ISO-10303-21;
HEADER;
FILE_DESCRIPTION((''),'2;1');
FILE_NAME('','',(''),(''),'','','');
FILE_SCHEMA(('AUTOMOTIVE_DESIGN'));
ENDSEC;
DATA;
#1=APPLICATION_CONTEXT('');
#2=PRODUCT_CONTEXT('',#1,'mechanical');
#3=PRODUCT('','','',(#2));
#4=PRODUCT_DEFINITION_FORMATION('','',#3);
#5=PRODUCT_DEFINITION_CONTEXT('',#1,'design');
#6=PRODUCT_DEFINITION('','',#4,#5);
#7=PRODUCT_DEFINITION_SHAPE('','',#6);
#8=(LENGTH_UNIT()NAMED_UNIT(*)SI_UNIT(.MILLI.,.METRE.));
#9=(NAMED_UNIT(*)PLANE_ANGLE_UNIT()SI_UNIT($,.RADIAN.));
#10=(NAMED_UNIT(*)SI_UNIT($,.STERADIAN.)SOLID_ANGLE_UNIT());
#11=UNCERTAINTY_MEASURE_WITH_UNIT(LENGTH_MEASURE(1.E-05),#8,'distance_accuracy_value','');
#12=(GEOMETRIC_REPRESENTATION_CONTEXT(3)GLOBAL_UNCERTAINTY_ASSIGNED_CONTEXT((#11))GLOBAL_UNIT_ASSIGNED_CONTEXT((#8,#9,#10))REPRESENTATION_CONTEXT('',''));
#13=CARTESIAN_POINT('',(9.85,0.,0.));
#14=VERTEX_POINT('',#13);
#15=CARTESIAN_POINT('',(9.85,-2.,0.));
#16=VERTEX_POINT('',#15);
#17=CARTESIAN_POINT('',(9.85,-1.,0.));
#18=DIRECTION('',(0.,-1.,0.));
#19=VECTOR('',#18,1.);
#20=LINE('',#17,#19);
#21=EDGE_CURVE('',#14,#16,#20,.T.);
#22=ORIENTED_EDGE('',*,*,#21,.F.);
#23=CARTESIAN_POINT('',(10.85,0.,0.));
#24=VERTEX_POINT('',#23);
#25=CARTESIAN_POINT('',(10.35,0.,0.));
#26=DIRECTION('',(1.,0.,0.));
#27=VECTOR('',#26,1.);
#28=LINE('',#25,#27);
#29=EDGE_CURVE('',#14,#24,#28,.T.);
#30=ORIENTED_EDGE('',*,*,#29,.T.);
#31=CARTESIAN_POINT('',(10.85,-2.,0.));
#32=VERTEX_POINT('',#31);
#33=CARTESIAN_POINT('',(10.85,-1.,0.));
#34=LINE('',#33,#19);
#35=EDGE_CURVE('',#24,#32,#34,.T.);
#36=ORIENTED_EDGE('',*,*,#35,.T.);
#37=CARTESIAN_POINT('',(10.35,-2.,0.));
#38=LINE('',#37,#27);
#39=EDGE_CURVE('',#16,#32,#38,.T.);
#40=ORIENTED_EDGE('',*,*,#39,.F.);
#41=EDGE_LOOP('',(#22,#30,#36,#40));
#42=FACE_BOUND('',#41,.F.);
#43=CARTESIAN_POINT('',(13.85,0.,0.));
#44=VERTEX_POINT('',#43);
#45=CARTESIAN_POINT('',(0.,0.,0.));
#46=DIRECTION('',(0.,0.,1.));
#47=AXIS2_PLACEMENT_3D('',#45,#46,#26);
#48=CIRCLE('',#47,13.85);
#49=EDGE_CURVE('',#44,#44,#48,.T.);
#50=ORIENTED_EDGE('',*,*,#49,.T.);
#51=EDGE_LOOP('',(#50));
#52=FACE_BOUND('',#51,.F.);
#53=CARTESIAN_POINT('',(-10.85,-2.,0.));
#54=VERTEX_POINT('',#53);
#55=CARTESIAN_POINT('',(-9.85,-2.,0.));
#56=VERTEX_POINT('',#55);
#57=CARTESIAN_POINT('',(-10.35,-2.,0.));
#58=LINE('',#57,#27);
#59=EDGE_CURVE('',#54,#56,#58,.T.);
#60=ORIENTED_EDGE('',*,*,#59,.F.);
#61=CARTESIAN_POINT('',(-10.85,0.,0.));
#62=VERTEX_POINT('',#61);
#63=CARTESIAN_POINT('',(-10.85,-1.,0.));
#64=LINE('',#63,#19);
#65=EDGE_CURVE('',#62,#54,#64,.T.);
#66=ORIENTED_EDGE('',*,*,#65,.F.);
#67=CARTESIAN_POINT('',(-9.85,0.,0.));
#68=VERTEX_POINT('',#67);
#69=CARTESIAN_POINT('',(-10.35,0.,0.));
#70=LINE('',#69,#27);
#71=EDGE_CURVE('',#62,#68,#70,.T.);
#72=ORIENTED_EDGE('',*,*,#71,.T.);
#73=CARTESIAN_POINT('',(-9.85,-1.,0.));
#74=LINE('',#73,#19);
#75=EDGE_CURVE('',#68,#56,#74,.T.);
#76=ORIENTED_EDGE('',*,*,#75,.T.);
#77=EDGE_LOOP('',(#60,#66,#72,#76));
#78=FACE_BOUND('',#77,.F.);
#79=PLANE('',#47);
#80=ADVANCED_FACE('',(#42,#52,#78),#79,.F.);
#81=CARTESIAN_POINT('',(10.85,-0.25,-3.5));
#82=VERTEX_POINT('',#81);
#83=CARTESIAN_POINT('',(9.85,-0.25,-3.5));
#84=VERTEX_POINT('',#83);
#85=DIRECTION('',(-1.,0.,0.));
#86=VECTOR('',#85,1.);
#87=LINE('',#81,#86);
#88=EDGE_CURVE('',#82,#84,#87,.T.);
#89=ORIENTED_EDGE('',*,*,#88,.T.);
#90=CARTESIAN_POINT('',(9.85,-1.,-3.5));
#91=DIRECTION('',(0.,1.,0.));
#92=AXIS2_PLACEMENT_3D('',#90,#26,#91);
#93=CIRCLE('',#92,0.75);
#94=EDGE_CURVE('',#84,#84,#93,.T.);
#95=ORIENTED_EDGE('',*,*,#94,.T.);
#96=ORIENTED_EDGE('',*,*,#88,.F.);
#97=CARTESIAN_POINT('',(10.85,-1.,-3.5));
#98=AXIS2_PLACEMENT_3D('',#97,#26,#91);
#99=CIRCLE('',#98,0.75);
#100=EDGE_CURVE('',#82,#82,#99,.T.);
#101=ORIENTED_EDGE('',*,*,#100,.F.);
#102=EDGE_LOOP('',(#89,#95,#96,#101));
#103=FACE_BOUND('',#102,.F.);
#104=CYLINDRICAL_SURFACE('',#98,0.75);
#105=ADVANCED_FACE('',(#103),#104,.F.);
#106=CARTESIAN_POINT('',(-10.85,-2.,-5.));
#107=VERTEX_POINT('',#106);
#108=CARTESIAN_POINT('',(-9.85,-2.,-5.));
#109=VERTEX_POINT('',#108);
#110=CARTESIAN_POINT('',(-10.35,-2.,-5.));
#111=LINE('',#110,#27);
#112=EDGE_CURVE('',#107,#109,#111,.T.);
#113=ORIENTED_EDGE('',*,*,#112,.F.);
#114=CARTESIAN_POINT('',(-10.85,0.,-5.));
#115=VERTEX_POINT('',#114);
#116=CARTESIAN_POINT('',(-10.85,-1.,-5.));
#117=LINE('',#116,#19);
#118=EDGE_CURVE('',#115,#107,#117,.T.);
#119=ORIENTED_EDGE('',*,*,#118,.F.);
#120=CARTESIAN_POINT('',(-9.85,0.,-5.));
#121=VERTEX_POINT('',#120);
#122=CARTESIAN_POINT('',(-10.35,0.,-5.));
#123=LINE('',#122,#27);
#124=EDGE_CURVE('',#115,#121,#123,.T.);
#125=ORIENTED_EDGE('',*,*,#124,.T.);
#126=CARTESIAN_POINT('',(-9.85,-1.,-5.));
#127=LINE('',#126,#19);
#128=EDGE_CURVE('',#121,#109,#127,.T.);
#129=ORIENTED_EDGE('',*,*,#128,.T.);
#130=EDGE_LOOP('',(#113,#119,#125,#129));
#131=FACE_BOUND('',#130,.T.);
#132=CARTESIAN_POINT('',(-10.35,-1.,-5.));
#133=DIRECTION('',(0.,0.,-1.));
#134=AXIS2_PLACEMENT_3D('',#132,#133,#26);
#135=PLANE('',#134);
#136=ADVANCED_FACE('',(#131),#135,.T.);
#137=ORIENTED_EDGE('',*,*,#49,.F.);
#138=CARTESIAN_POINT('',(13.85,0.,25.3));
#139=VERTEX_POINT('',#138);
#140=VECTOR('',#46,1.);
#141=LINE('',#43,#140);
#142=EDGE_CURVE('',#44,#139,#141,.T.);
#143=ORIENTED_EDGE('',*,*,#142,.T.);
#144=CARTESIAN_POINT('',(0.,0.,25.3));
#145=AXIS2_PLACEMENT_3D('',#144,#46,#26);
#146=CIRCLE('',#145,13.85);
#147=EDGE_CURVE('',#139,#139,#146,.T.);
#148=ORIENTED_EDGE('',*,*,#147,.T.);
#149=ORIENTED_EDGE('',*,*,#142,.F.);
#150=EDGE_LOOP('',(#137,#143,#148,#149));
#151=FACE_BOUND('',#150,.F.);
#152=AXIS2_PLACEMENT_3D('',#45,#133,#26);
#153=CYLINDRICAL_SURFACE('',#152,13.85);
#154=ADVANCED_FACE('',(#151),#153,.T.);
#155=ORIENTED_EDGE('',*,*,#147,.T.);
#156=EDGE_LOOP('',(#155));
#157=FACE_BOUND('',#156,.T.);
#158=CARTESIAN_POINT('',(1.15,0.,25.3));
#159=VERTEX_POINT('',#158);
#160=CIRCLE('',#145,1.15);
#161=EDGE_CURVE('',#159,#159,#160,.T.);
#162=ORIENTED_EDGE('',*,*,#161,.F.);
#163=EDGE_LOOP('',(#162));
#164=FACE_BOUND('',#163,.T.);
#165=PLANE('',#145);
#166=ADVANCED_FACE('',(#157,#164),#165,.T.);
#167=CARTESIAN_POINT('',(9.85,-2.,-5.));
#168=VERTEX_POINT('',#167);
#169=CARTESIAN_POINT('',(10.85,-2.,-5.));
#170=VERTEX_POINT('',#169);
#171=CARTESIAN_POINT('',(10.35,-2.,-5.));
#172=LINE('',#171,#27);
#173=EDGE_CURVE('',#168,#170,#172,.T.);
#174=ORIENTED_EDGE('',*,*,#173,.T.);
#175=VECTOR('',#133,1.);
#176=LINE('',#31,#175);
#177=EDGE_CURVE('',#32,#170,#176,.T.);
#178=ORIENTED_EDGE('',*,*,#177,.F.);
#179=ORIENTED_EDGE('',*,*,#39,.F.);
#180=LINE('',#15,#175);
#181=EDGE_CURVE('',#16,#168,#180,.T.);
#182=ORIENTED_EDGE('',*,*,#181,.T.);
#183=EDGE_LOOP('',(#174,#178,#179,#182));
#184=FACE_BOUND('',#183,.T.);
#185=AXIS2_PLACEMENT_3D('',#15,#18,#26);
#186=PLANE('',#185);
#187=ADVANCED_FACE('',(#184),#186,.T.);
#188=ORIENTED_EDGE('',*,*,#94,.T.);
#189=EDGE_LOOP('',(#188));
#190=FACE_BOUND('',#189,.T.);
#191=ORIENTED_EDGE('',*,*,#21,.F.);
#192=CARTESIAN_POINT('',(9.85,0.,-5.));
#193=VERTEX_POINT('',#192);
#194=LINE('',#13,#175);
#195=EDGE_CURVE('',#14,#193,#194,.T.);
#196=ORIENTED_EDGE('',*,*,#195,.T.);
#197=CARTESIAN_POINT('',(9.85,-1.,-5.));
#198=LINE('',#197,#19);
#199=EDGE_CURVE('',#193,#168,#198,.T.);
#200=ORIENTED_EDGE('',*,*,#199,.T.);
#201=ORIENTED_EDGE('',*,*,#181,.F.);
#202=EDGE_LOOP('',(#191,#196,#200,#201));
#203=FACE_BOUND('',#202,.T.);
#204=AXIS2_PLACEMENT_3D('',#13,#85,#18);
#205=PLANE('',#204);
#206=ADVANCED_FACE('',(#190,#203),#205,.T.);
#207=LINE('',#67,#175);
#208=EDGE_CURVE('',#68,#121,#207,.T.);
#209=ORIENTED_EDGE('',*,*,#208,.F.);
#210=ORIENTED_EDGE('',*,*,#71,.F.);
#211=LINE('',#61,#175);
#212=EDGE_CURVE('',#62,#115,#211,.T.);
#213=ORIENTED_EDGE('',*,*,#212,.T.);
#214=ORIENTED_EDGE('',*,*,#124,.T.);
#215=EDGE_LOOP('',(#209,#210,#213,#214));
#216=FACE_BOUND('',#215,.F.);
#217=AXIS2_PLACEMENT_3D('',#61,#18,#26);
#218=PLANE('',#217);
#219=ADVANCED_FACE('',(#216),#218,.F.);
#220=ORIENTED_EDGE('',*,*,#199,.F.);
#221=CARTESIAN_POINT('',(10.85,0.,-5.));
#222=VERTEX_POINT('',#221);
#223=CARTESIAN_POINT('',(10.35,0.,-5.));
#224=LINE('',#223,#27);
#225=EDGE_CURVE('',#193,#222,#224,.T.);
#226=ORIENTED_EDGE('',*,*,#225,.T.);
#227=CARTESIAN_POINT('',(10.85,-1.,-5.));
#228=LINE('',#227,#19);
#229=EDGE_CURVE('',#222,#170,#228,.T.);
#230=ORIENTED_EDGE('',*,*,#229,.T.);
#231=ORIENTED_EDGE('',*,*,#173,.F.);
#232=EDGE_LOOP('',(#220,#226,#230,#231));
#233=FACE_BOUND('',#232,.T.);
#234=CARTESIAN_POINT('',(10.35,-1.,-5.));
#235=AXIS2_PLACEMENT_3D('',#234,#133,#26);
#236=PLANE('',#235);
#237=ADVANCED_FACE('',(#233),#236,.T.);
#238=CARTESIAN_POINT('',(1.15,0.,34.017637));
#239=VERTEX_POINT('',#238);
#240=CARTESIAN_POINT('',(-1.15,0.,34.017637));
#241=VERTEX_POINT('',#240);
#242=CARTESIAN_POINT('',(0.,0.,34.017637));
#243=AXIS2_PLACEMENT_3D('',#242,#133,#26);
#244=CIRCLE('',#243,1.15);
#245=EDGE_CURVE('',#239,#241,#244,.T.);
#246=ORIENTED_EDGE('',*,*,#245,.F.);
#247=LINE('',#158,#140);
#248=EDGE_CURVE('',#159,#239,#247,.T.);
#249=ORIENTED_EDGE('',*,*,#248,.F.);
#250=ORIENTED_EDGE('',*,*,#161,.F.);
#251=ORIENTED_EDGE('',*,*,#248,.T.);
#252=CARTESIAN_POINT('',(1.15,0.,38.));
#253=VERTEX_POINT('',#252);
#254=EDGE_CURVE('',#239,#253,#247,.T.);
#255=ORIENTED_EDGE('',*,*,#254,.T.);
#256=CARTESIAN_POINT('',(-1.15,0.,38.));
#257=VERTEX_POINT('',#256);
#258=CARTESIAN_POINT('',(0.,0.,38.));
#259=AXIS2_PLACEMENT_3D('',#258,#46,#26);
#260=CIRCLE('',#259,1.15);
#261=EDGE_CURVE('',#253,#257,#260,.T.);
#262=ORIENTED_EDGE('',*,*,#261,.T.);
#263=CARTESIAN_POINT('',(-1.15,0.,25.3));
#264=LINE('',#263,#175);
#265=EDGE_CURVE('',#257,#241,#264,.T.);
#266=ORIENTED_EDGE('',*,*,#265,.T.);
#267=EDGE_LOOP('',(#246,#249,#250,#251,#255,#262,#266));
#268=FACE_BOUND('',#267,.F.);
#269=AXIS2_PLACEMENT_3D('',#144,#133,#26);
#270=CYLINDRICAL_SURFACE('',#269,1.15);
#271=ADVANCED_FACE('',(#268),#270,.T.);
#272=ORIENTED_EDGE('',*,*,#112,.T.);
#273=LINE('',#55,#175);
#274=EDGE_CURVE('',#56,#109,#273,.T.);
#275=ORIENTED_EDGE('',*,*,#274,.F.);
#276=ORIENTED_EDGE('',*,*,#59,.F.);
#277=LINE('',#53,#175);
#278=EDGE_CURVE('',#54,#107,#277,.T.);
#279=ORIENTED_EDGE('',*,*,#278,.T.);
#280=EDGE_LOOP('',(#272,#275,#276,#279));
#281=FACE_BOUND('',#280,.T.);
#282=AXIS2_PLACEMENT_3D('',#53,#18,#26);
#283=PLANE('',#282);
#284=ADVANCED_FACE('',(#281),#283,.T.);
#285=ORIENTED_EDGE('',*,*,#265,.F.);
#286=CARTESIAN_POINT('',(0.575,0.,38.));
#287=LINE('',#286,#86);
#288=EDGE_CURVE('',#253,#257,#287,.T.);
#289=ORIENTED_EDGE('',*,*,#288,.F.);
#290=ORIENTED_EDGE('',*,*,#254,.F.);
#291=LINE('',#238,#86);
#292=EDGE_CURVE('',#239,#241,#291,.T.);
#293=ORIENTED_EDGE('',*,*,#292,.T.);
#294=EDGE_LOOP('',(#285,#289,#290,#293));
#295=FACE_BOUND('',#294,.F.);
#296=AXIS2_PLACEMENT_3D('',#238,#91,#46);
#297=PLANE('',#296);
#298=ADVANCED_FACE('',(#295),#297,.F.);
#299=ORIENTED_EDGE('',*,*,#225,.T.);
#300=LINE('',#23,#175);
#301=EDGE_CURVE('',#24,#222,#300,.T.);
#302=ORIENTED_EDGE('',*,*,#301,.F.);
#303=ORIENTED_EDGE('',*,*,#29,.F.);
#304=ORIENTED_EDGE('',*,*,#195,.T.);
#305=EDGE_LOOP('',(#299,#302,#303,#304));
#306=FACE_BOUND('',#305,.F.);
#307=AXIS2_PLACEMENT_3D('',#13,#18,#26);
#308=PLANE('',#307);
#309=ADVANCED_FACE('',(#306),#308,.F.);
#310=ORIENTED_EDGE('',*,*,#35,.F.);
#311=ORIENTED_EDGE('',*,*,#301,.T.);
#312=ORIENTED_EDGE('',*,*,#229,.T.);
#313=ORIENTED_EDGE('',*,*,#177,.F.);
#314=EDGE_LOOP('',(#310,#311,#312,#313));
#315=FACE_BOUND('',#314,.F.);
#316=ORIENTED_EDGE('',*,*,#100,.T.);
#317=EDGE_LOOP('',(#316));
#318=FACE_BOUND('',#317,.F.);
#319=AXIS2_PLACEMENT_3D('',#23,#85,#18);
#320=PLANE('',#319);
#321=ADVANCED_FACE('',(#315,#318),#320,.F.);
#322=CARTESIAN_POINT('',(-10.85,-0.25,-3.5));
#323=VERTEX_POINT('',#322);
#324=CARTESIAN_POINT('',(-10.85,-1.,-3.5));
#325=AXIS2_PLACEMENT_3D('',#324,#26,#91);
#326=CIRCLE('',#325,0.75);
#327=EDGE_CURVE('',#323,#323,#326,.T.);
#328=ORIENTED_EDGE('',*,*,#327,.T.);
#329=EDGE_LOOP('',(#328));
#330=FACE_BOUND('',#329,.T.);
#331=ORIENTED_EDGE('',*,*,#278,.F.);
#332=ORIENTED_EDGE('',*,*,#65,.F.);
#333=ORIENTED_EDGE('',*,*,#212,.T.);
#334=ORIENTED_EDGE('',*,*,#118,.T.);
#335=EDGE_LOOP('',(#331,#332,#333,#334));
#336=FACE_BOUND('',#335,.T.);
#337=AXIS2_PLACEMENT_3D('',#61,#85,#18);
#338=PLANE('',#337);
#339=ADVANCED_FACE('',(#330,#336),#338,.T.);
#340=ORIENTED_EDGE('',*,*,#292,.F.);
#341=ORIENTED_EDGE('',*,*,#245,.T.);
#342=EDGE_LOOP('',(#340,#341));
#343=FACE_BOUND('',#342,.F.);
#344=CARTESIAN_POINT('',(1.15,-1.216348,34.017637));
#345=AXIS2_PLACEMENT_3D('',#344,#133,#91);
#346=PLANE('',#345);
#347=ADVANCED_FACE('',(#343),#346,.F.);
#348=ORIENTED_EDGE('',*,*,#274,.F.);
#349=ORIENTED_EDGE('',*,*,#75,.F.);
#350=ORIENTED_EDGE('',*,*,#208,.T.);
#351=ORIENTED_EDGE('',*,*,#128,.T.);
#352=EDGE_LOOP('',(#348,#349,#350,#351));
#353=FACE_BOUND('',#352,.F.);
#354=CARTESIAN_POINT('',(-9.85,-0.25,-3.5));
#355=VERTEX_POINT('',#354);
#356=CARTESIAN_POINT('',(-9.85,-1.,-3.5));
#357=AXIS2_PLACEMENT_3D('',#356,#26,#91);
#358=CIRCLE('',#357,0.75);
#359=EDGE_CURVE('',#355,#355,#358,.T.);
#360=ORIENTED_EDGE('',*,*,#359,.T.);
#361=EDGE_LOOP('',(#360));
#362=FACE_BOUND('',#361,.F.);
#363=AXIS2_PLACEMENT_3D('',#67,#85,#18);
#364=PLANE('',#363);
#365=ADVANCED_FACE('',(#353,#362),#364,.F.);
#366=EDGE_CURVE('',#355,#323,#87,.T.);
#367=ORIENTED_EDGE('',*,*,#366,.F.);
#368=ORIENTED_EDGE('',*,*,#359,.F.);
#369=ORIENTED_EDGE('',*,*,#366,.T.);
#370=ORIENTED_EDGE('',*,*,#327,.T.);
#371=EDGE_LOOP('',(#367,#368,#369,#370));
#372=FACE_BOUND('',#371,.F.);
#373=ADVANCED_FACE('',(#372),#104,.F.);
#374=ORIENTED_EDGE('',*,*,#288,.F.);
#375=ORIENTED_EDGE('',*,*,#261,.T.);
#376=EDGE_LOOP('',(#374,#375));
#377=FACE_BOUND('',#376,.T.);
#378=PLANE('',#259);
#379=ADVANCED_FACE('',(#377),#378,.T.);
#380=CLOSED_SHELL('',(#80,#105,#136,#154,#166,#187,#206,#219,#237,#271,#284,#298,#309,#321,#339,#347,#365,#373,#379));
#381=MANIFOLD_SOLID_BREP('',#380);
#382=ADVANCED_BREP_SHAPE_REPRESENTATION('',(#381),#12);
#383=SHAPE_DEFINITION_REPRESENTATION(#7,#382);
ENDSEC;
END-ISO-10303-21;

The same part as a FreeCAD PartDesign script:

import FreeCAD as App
import Part
import Sketcher
from FreeCAD import Vector


def add_polygon(sketch, points):
    """Adds a closed chain of lines whose ends are joined by coincident constraints."""
    first, n = sketch.GeometryCount, len(points)
    for a, b in zip(points, points[1:] + points[:1]):
        sketch.addGeometry(Part.LineSegment(App.Vector(*a, 0), App.Vector(*b, 0)), False)
    for i in range(n):
        sketch.addConstraint(Sketcher.Constraint("Coincident", first + i, 2, first + (i + 1) % n, 1))

doc = App.newDocument("Part")
params = doc.addObject("Spreadsheet::Sheet", "Params")
for row, (alias, value) in enumerate([
    ("sketch1_diameter", "27.7 mm"),
    ("pad1_length", "25.3 mm"),
    ("sketch2_diameter", "2.3 mm"),
    ("pad2_length", "12.7 mm"),
    ("pocket1_length", "25 mm"),
    ("sketch4_width", "1 mm"),
    ("sketch4_height", "2 mm"),
    ("pad3_length", "5 mm"),
    ("sketch5_diameter", "1.5 mm"),
], start=1):
    params.set(f"A{row}", alias)
    params.set(f"B{row}", "=" + value)
    params.setAlias(f"B{row}", alias)

body = doc.addObject("PartDesign::Body", "Body")

# Sketch on XY plane
sketch1 = body.newObject("Sketcher::SketchObject", "Sketch")
sketch1.AttachmentSupport = (doc.getObject("XY_Plane"), [""])
sketch1.MapMode = "FlatFace"
sketch1.addGeometry(Part.Circle(Vector(0, 0, 0), Vector(0, 0, 1), 13.85), False)
sketch1.addConstraint([
    Sketcher.Constraint("Coincident", 0, 3, -1, 1),
    Sketcher.Constraint("Diameter", 0, 27.7),
])
sketch1.setExpression("Constraints[1]", "Params.sketch1_diameter")
pad1 = body.newObject("PartDesign::Pad", "Pad")
pad1.Profile = sketch1
pad1.setExpression("Length", "Params.pad1_length")

# Sketch on XY plane
sketch2 = body.newObject("Sketcher::SketchObject", "Sketch001")
sketch2.AttachmentSupport = (doc.getObject("XY_Plane"), [""])
sketch2.MapMode = "FlatFace"
sketch2.AttachmentOffset = App.Placement(Vector(0, 0, 25.3), App.Rotation())
sketch2.addGeometry(Part.Circle(Vector(0, 0, 0), Vector(0, 0, 1), 1.15), False)
sketch2.addConstraint([
    Sketcher.Constraint("Coincident", 0, 3, -1, 1),
    Sketcher.Constraint("Diameter", 0, 2.3),
])
sketch2.setExpression("Constraints[1]", "Params.sketch2_diameter")
pad2 = body.newObject("PartDesign::Pad", "Pad001")
pad2.Profile = sketch2
pad2.setExpression("Length", "Params.pad2_length")

# Sketch on YZ plane
sketch3 = body.newObject("Sketcher::SketchObject", "Sketch002")
sketch3.AttachmentSupport = (doc.getObject("YZ_Plane"), [""])
sketch3.MapMode = "FlatFace"
sketch3.AttachmentOffset = App.Placement(Vector(0, 0, 1.15), App.Rotation())
add_polygon(sketch3, [(0, 38.01338), (-1.15913, 38.01338), (-1.216348, 34.017637), (0, 34.017637)])  # lines 0-3
sketch3.addConstraint([
    Sketcher.Constraint("Horizontal", 0),
    Sketcher.Constraint("Horizontal", 2),
    Sketcher.Constraint("Vertical", 3),
    Sketcher.Constraint("PointOnObject", 2, 2, -2),
    Sketcher.Constraint("DistanceX", 0, 2, 0, 1, 1.15913),
    Sketcher.Constraint("DistanceX", 2, 1, 2, 2, 1.216348),
    Sketcher.Constraint("DistanceY", 3, 1, 3, 2, 3.995743),
    Sketcher.Constraint("DistanceY", -1, 1, 0, 2, 38.01338),
])
pocket1 = body.newObject("PartDesign::Pocket", "Pocket")
pocket1.Profile = sketch3
pocket1.setExpression("Length", "Params.pocket1_length")

# Sketch on XY plane
sketch4 = body.newObject("Sketcher::SketchObject", "Sketch003")
sketch4.AttachmentSupport = (doc.getObject("XY_Plane"), [""])
sketch4.MapMode = "FlatFace"
add_polygon(sketch4, [(-10.85, -2), (-10.85, 0), (-9.85, 0), (-9.85, -2)])  # lines 0-3
add_polygon(sketch4, [(9.85, -2), (9.85, 0), (10.85, 0), (10.85, -2)])  # lines 4-7
sketch4.addConstraint([
    Sketcher.Constraint("Vertical", 0),
    Sketcher.Constraint("Horizontal", 1),
    Sketcher.Constraint("Vertical", 2),
    Sketcher.Constraint("Horizontal", 3),
    Sketcher.Constraint("Vertical", 4),
    Sketcher.Constraint("Horizontal", 5),
    Sketcher.Constraint("Vertical", 6),
    Sketcher.Constraint("Horizontal", 7),
    Sketcher.Constraint("Symmetric", 1, 2, 4, 2, -1, 1),
    Sketcher.Constraint("Symmetric", 0, 2, 5, 2, -2),
    Sketcher.Constraint("Horizontal", 3, 2, 6, 2),
    Sketcher.Constraint("DistanceX", 1, 1, 1, 2, 1.0),
    Sketcher.Constraint("DistanceY", 0, 1, 0, 2, 2.0),
    Sketcher.Constraint("DistanceX", 1, 2, 4, 2, 19.7),
])
sketch4.setExpression("Constraints[19]", "Params.sketch4_width")
sketch4.setExpression("Constraints[20]", "Params.sketch4_height")
pad3 = body.newObject("PartDesign::Pad", "Pad002")
pad3.Profile = sketch4
pad3.setExpression("Length", "Params.pad3_length")
pad3.Reversed = True

# Sketch on YZ plane
sketch5 = body.newObject("Sketcher::SketchObject", "Sketch004")
sketch5.AttachmentSupport = (doc.getObject("YZ_Plane"), [""])
sketch5.MapMode = "FlatFace"
sketch5.AttachmentOffset = App.Placement(Vector(0, 0, 10.85), App.Rotation())
sketch5.addGeometry(Part.Circle(Vector(-1, -3.5, 0), Vector(0, 0, 1), 0.75), False)
sketch5.addConstraint([
    Sketcher.Constraint("Diameter", 0, 1.5),
    Sketcher.Constraint("DistanceX", 0, 3, -1, 1, 1.0),
    Sketcher.Constraint("DistanceY", 0, 3, -1, 1, 3.5),
])
sketch5.setExpression("Constraints[0]", "Params.sketch5_diameter")
pocket2 = body.newObject("PartDesign::Pocket", "Pocket001")
pocket2.Profile = sketch5
pocket2.Type = "ThroughAll"

doc.recompute()
